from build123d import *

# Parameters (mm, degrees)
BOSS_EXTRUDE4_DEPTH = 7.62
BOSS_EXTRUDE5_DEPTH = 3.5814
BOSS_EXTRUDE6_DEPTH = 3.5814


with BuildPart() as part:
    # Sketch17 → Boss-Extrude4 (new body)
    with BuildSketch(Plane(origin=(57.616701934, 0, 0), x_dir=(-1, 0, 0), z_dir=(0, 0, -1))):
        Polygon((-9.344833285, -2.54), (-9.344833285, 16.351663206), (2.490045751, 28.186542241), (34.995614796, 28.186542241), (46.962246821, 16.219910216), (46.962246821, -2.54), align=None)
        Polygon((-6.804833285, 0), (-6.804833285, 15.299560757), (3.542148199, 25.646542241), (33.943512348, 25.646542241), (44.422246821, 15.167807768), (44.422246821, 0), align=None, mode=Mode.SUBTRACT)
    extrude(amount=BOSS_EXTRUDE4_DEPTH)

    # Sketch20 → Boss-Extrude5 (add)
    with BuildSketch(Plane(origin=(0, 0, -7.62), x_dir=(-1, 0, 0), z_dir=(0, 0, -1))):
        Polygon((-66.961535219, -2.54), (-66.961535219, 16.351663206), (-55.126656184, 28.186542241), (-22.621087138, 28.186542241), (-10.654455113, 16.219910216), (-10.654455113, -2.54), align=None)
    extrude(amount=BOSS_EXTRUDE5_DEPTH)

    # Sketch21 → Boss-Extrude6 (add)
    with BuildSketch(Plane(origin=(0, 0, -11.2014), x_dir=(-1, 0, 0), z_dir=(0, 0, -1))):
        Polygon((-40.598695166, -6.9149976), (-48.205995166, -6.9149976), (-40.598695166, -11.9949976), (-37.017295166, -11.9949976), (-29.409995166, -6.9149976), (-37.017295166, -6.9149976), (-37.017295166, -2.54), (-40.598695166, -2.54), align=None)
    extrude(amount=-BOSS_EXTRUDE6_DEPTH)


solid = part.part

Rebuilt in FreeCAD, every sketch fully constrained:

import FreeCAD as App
import Part
import Sketcher
from FreeCAD import Vector
Q = App.Units.Quantity

doc = App.newDocument("Part")
body = doc.addObject("PartDesign::Body", "Body")

# Sketch on XY plane
sketch1 = body.newObject("Sketcher::SketchObject", "Sketch")
sketch1.AttachmentSupport = (doc.getObject("XY_Plane"), [""])
sketch1.MapMode = "FlatFace"
sketch1.addGeometry([
    Part.LineSegment(Vector(67, 16, 0), Vector(67, -3, 0)),  # 0
    Part.LineSegment(Vector(67, -3, 0), Vector(11, -3, 0)),  # 1
    Part.LineSegment(Vector(11, -3, 0), Vector(11, 16, 0)),  # 2
    Part.LineSegment(Vector(11, 16, 0), Vector(23, 28, 0)),  # 3
    Part.LineSegment(Vector(23, 28, 0), Vector(55, 28, 0)),  # 4
    Part.LineSegment(Vector(55, 28, 0), Vector(67, 16, 0)),  # 5
    Part.LineSegment(Vector(64, 0, 0), Vector(64, 15, 0)),  # 6
    Part.LineSegment(Vector(64, 15, 0), Vector(54, 26, 0)),  # 7
    Part.LineSegment(Vector(54, 26, 0), Vector(24, 26, 0)),  # 8
    Part.LineSegment(Vector(24, 26, 0), Vector(13, 15, 0)),  # 9
    Part.LineSegment(Vector(13, 15, 0), Vector(13, 0, 0)),  # 10
    Part.LineSegment(Vector(13, 0, 0), Vector(64, 0, 0)),  # 11
], False)
sketch1.addConstraint([
    Sketcher.Constraint("Coincident", 0, 2, 1, 1),
    Sketcher.Constraint("Coincident", 1, 2, 2, 1),
    Sketcher.Constraint("Coincident", 2, 2, 3, 1),
    Sketcher.Constraint("Coincident", 3, 2, 4, 1),
    Sketcher.Constraint("Coincident", 4, 2, 5, 1),
    Sketcher.Constraint("Coincident", 5, 2, 0, 1),
    Sketcher.Constraint("Coincident", 6, 2, 7, 1),
    Sketcher.Constraint("Coincident", 7, 2, 8, 1),
    Sketcher.Constraint("Coincident", 8, 2, 9, 1),
    Sketcher.Constraint("Coincident", 9, 2, 10, 1),
    Sketcher.Constraint("Coincident", 10, 2, 11, 1),
    Sketcher.Constraint("Coincident", 11, 2, 6, 1),
    Sketcher.Constraint("Vertical", 0),
    Sketcher.Constraint("Horizontal", 1),
    Sketcher.Constraint("Vertical", 2),
    Sketcher.Constraint("Horizontal", 4),
    Sketcher.Constraint("Vertical", 6),
    Sketcher.Constraint("Horizontal", 8),
    Sketcher.Constraint("Vertical", 10),
    Sketcher.Constraint("Horizontal", 11),
    Sketcher.Constraint("PointOnObject", 10, 2, -1),
    Sketcher.Constraint("Perpendicular", 3, 5),
    Sketcher.Constraint("Parallel", 5, 7),
    Sketcher.Constraint("Perpendicular", 7, 9),
    Sketcher.Constraint("Angle", 3, Q("45 deg")),
    Sketcher.Constraint("DistanceY", 0, 2, -1, 1, Q("0.1 in")),
    Sketcher.Constraint("DistanceX", 6, 2, 5, 2, Q("0.1 in")),
    Sketcher.Constraint("DistanceY", 7, 2, 4, 2, Q("0.1 in")),
    Sketcher.Constraint("DistanceX", 2, 2, 9, 2, Q("0.1 in")),
    Sketcher.Constraint("DistanceX", 1, 2, 1, 1, Q("56.30708 mm")),
    Sketcher.Constraint("DistanceX", 4, 1, 4, 2, Q("32.505569 mm")),
    Sketcher.Constraint("DistanceY", 2, 1, 2, 2, Q("18.75991 mm")),
    Sketcher.Constraint("DistanceY", 6, 1, 6, 2, Q("15.299561 mm")),
    Sketcher.Constraint("DistanceX", 2, 2, 4, 2, Q("44.472201 mm")),
    Sketcher.Constraint("Distance", 9, Q("14.819168 mm")),
    Sketcher.Constraint("DistanceX", -1, 1, 8, 2, Q("23.67319 mm")),
])
pad1 = body.newObject("PartDesign::Pad", "Pad")
pad1.Profile = sketch1
pad1.Length = Q("0.3 in")
pad1.Reversed = True

# Sketch on XY plane
sketch2 = body.newObject("Sketcher::SketchObject", "Sketch001")
sketch2.AttachmentSupport = (doc.getObject("XY_Plane"), [""])
sketch2.MapMode = "FlatFace"
sketch2.AttachmentOffset = App.Placement(Vector(0, 0, -0.3 * 25.4), App.Rotation())
sketch2.addGeometry([
    Part.LineSegment(Vector(67, 16, 0), Vector(67, -3, 0)),  # 0
    Part.LineSegment(Vector(67, -3, 0), Vector(11, -3, 0)),  # 1
    Part.LineSegment(Vector(11, -3, 0), Vector(11, 16, 0)),  # 2
    Part.LineSegment(Vector(11, 16, 0), Vector(23, 28, 0)),  # 3
    Part.LineSegment(Vector(23, 28, 0), Vector(55, 28, 0)),  # 4
    Part.LineSegment(Vector(55, 28, 0), Vector(67, 16, 0)),  # 5
], False)
sketch2.addConstraint([
    Sketcher.Constraint("Coincident", 0, 2, 1, 1),
    Sketcher.Constraint("Coincident", 1, 2, 2, 1),
    Sketcher.Constraint("Coincident", 2, 2, 3, 1),
    Sketcher.Constraint("Coincident", 3, 2, 4, 1),
    Sketcher.Constraint("Coincident", 4, 2, 5, 1),
    Sketcher.Constraint("Coincident", 5, 2, 0, 1),
    Sketcher.Constraint("Vertical", 0),
    Sketcher.Constraint("Horizontal", 1),
    Sketcher.Constraint("Vertical", 2),
    Sketcher.Constraint("Horizontal", 4),
    Sketcher.Constraint("Perpendicular", 3, 5),
    Sketcher.Constraint("Angle", 3, Q("45 deg")),
    Sketcher.Constraint("DistanceY", 0, 2, -1, 1, Q("0.1 in")),
    Sketcher.Constraint("DistanceX", 1, 2, 1, 1, Q("56.30708 mm")),
    Sketcher.Constraint("DistanceX", 4, 1, 4, 2, Q("32.505569 mm")),
    Sketcher.Constraint("DistanceY", 2, 1, 2, 2, Q("18.75991 mm")),
    Sketcher.Constraint("DistanceX", 2, 2, 4, 2, Q("44.472201 mm")),
    Sketcher.Constraint("DistanceX", -1, 1, 0, 2, Q("66.961535 mm")),
])
pad2 = body.newObject("PartDesign::Pad", "Pad001")
pad2.Profile = sketch2
pad2.Length = Q("0.141 in")
pad2.Reversed = True

# Sketch on XY plane
sketch3 = body.newObject("Sketcher::SketchObject", "Sketch002")
sketch3.AttachmentSupport = (doc.getObject("XY_Plane"), [""])
sketch3.MapMode = "FlatFace"
sketch3.AttachmentOffset = App.Placement(Vector(0, 0, -0.441 * 25.4), App.Rotation())
sketch3.addGeometry([
    Part.LineSegment(Vector(40.6, -6.9, 0), Vector(48.2, -6.9, 0)),  # 0
    Part.LineSegment(Vector(48.2, -6.9, 0), Vector(40.6, -12, 0)),  # 1
    Part.LineSegment(Vector(40.6, -12, 0), Vector(37, -12, 0)),  # 2
    Part.LineSegment(Vector(37, -12, 0), Vector(29.4, -6.9, 0)),  # 3
    Part.LineSegment(Vector(29.4, -6.9, 0), Vector(37, -6.9, 0)),  # 4
    Part.LineSegment(Vector(37, -6.9, 0), Vector(37, -2.5, 0)),  # 5
    Part.LineSegment(Vector(37, -2.5, 0), Vector(40.6, -2.5, 0)),  # 6
    Part.LineSegment(Vector(40.6, -2.5, 0), Vector(40.6, -6.9, 0)),  # 7
], False)
sketch3.addConstraint([
    Sketcher.Constraint("Coincident", 0, 2, 1, 1),
    Sketcher.Constraint("Coincident", 1, 2, 2, 1),
    Sketcher.Constraint("Coincident", 2, 2, 3, 1),
    Sketcher.Constraint("Coincident", 3, 2, 4, 1),
    Sketcher.Constraint("Coincident", 4, 2, 5, 1),
    Sketcher.Constraint("Coincident", 5, 2, 6, 1),
    Sketcher.Constraint("Coincident", 6, 2, 7, 1),
    Sketcher.Constraint("Coincident", 7, 2, 0, 1),
    Sketcher.Constraint("Horizontal", 0),
    Sketcher.Constraint("Horizontal", 2),
    Sketcher.Constraint("Horizontal", 4),
    Sketcher.Constraint("Vertical", 5),
    Sketcher.Constraint("Horizontal", 6),
    Sketcher.Constraint("Vertical", 7),
    Sketcher.Constraint("Horizontal", 0, 2, 3, 2),
    Sketcher.Constraint("Vertical", 2, 2, 4, 2),
    Sketcher.Constraint("Vertical", 1, 2, 6, 2),
    Sketcher.Constraint("Equal", 0, 4),
    Sketcher.Constraint("DistanceY", 5, 2, -1, 1, Q("0.1 in")),
    Sketcher.Constraint("DistanceY", 1, 2, 0, 2, Q("0.2 in")),
    Sketcher.Constraint("DistanceX", 2, 2, 2, 1, Q("0.141 in")),
    Sketcher.Constraint("DistanceX", 3, 2, 0, 2, Q("0.74 in")),
    Sketcher.Constraint("DistanceY", 5, 1, 5, 2, Q("4.374998 mm")),
    Sketcher.Constraint("DistanceX", -1, 1, 0, 2, Q("48.205995 mm")),
])
pad3 = body.newObject("PartDesign::Pad", "Pad002")
pad3.Profile = sketch3
pad3.Length = Q("0.141 in")

doc.recompute()
